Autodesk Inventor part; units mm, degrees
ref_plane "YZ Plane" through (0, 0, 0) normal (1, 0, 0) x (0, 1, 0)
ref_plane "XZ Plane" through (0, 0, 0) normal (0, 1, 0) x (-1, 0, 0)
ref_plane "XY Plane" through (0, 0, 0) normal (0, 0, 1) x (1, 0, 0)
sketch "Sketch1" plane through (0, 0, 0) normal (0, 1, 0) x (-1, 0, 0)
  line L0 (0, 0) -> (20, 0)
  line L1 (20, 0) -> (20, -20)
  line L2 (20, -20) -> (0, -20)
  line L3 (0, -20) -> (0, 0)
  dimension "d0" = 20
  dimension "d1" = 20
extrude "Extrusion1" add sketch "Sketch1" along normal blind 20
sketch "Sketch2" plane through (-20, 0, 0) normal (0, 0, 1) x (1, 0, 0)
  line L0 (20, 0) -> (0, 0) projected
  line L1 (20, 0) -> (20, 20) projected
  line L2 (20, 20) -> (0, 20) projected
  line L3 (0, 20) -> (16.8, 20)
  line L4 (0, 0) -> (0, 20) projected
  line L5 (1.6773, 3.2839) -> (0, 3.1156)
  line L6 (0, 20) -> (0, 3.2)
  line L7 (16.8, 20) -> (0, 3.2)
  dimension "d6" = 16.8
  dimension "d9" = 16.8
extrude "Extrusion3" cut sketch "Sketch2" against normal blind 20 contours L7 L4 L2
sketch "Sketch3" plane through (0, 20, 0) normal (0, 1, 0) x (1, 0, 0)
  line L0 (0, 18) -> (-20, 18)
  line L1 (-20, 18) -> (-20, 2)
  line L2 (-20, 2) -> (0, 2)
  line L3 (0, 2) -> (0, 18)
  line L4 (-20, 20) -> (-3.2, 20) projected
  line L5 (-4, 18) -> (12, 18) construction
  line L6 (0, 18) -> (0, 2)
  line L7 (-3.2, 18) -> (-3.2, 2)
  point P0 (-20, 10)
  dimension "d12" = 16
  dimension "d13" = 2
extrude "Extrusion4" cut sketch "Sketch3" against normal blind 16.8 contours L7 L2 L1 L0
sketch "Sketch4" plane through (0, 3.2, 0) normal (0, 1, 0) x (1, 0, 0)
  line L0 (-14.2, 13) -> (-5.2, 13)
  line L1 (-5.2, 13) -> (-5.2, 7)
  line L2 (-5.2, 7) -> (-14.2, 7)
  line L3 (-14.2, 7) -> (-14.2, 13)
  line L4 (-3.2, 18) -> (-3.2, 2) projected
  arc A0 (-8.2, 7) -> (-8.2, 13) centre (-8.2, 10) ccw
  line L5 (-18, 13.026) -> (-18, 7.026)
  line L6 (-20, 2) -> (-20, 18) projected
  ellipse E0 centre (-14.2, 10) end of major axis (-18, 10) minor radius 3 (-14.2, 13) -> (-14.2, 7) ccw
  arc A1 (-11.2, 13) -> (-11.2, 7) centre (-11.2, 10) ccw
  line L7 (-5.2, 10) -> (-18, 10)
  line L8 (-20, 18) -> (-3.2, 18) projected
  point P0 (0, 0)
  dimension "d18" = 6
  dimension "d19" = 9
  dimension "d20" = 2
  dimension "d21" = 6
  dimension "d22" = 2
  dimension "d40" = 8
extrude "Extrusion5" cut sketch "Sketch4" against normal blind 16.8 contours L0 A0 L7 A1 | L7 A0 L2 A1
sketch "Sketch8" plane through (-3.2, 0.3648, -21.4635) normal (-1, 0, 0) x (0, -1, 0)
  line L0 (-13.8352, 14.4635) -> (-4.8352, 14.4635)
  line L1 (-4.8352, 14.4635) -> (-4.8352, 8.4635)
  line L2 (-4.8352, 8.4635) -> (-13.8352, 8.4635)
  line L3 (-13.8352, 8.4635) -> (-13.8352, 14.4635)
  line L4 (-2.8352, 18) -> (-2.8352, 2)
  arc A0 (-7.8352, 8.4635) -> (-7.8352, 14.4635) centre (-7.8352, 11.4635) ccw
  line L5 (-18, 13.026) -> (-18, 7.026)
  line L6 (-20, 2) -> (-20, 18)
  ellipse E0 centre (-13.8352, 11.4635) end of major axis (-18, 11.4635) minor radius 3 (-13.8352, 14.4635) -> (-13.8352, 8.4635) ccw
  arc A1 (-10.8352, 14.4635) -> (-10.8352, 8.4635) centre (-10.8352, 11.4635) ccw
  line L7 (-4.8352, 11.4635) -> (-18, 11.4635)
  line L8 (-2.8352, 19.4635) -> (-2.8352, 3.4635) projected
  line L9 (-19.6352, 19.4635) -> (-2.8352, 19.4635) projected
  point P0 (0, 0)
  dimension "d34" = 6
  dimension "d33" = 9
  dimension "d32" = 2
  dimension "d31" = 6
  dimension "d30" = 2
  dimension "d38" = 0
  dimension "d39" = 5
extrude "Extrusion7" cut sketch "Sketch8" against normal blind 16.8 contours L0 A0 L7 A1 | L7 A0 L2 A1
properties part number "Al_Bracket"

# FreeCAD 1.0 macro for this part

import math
import FreeCAD as App
import Part
import Sketcher
from FreeCAD import Vector
Q = App.Units.Quantity

doc = App.newDocument("Part")
params = doc.addObject("Spreadsheet::Sheet", "Params")
for row, (alias, value) in enumerate([
    ("sketch1_width", "20 mm"),
    ("pad1_length", "20 mm"),
    ("sketch2_width", "16.8 mm"),
    ("pocket1_length", "20 mm"),
    ("sketch3_height", "16 mm"),
    ("sketch3_width", "16.8 mm"),
    ("pocket2_length", "16.8 mm"),
    ("sketch4_radius", "3 mm"),
    ("sketch4_width", "3 mm"),
    ("pocket3_length", "16.8 mm"),
    ("sketch5_radius", "3 mm"),
    ("sketch5_width", "3 mm"),
    ("pocket4_length", "16.8 mm"),
], start=1):
    params.set(f"A{row}", alias)
    params.set(f"B{row}", "=" + value)
    params.setAlias(f"B{row}", alias)

body = doc.addObject("PartDesign::Body", "Body")

sketch1 = body.newObject("Sketcher::SketchObject", "Sketch")
sketch1.AttachmentSupport = (doc.getObject("XZ_Plane"), [""])
sketch1.MapMode = "FlatFace"
sketch1.addGeometry([
    Part.LineSegment(Vector(-20, 0, 0), Vector(0, 0, 0)),
    Part.LineSegment(Vector(0, 0, 0), Vector(0, -20, 0)),
    Part.LineSegment(Vector(0, -20, 0), Vector(-20, -20, 0)),
    Part.LineSegment(Vector(-20, -20, 0), Vector(-20, 0, 0)),
], False)
sketch1.addConstraint([
    Sketcher.Constraint("Coincident", 0, 2, 1, 1),
    Sketcher.Constraint("Coincident", 1, 2, 2, 1),
    Sketcher.Constraint("Coincident", 2, 2, 3, 1),
    Sketcher.Constraint("Coincident", 3, 2, 0, 1),
    Sketcher.Constraint("Horizontal", 0),
    Sketcher.Constraint("Vertical", 1),
    Sketcher.Constraint("Horizontal", 2),
    Sketcher.Constraint("Vertical", 3),
    Sketcher.Constraint("Coincident", 0, 2, -1, 1),
    Sketcher.Constraint("Equal", 2, 1),
    Sketcher.Constraint("DistanceX", 0, 1, 0, 2, Q("20 mm")),
])
sketch1.setExpression("Constraints[10]", "Params.sketch1_width")
pad1 = body.newObject("PartDesign::Pad", "Pad")
pad1.Profile = sketch1
pad1.setExpression("Length", "Params.pad1_length")
pad1.Reversed = True

sketch2 = body.newObject("Sketcher::SketchObject", "Sketch001")
sketch2.AttachmentSupport = (doc.getObject("XY_Plane"), [""])
sketch2.MapMode = "FlatFace"
sketch2.addGeometry([
    Part.LineSegment(Vector(-20, 3.2, 0), Vector(-3.2, 20, 0)),
    Part.LineSegment(Vector(-3.2, 20, 0), Vector(-20, 20, 0)),
    Part.LineSegment(Vector(-20, 20, 0), Vector(-20, 3.2, 0)),
], False)
sketch2.addConstraint([
    Sketcher.Constraint("Coincident", 0, 2, 1, 1),
    Sketcher.Constraint("Coincident", 1, 2, 2, 1),
    Sketcher.Constraint("Coincident", 2, 2, 0, 1),
    Sketcher.Constraint("Horizontal", 1),
    Sketcher.Constraint("Vertical", 2),
    Sketcher.Constraint("Equal", 1, 2),
    Sketcher.Constraint("DistanceX", 1, 2, 1, 1, Q("16.8 mm")),
    Sketcher.Constraint("DistanceY", -1, 1, 0, 2, Q("20 mm")),
    Sketcher.Constraint("DistanceX", 1, 2, -1, 1, Q("20 mm")),
])
sketch2.setExpression("Constraints[6]", "Params.sketch2_width")
pocket1 = body.newObject("PartDesign::Pocket", "Pocket")
pocket1.Profile = sketch2
pocket1.setExpression("Length", "Params.pocket1_length")

sketch3 = body.newObject("Sketcher::SketchObject", "Sketch002")
sketch3.AttachmentSupport = (doc.getObject("XZ_Plane"), [""])
sketch3.MapMode = "FlatFace"
sketch3.AttachmentOffset = App.Placement(Vector(0, 0, -20), App.Rotation())
sketch3.addGeometry([
    Part.LineSegment(Vector(-3.2, -2, 0), Vector(-3.2, -18, 0)),
    Part.LineSegment(Vector(-3.2, -18, 0), Vector(-20, -18, 0)),
    Part.LineSegment(Vector(-20, -18, 0), Vector(-20, -2, 0)),
    Part.LineSegment(Vector(-20, -2, 0), Vector(-3.2, -2, 0)),
], False)
sketch3.addConstraint([
    Sketcher.Constraint("Coincident", 0, 2, 1, 1),
    Sketcher.Constraint("Coincident", 1, 2, 2, 1),
    Sketcher.Constraint("Coincident", 2, 2, 3, 1),
    Sketcher.Constraint("Coincident", 3, 2, 0, 1),
    Sketcher.Constraint("Vertical", 0),
    Sketcher.Constraint("Horizontal", 1),
    Sketcher.Constraint("Vertical", 2),
    Sketcher.Constraint("Horizontal", 3),
    Sketcher.Constraint("DistanceY", 0, 2, 0, 1, Q("16 mm")),
    Sketcher.Constraint("DistanceY", 2, 2, -1, 1, Q("2 mm")),
    Sketcher.Constraint("DistanceX", 1, 2, 1, 1, Q("16.8 mm")),
    Sketcher.Constraint("DistanceX", 1, 2, -1, 1, Q("20 mm")),
])
sketch3.setExpression("Constraints[8]", "Params.sketch3_height")
sketch3.setExpression("Constraints[10]", "Params.sketch3_width")
pocket2 = body.newObject("PartDesign::Pocket", "Pocket001")
pocket2.Profile = sketch3
pocket2.setExpression("Length", "Params.pocket2_length")
pocket2.Reversed = True

sketch4 = body.newObject("Sketcher::SketchObject", "Sketch003")
sketch4.AttachmentSupport = (doc.getObject("XZ_Plane"), [""])
sketch4.MapMode = "FlatFace"
sketch4.AttachmentOffset = App.Placement(Vector(0, 0, -3.2), App.Rotation())
sketch4.addGeometry([
    Part.LineSegment(Vector(-8.2, -13, 0), Vector(-11.2, -13, 0)),
    Part.ArcOfCircle(Part.Circle(Vector(-11.2, -10, 0), Vector(0, 0, 1), 3), math.radians(90), math.radians(270)),
    Part.LineSegment(Vector(-11.2, -7, 0), Vector(-8.2, -7, 0)),
    Part.ArcOfCircle(Part.Circle(Vector(-8.2, -10, 0), Vector(0, 0, 1), 3), math.radians(-90), math.radians(90)),
], False)
sketch4.addConstraint([
    Sketcher.Constraint("Tangent", 0, 2, 1, 2),
    Sketcher.Constraint("Tangent", 1, 1, 2, 1),
    Sketcher.Constraint("Tangent", 2, 2, 3, 2),
    Sketcher.Constraint("Tangent", 3, 1, 0, 1),
    Sketcher.Constraint("Horizontal", 0),
    Sketcher.Constraint("Horizontal", 2),
    Sketcher.Constraint("Radius", 1, Q("3 mm")),
    Sketcher.Constraint("DistanceX", 0, 2, 0, 1, Q("3 mm")),
    Sketcher.Constraint("DistanceY", 1, 3, -1, 1, Q("10 mm")),
    Sketcher.Constraint("DistanceX", 1, 3, -1, 1, Q("11.2 mm")),
])
sketch4.setExpression("Constraints[6]", "Params.sketch4_radius")
sketch4.setExpression("Constraints[7]", "Params.sketch4_width")
pocket3 = body.newObject("PartDesign::Pocket", "Pocket002")
pocket3.Profile = sketch4
pocket3.setExpression("Length", "Params.pocket3_length")
pocket3.Reversed = True

sketch5 = body.newObject("Sketcher::SketchObject", "Sketch004")
sketch5.AttachmentSupport = (doc.getObject("YZ_Plane"), [""])
sketch5.MapMode = "FlatFace"
sketch5.AttachmentOffset = App.Placement(Vector(0, 0, -3.2), App.Rotation())
sketch5.addGeometry([
    Part.LineSegment(Vector(8.2, -7, 0), Vector(11.2, -7, 0)),
    Part.ArcOfCircle(Part.Circle(Vector(11.2, -10, 0), Vector(0, 0, 1), 3), math.radians(-90), math.radians(90)),
    Part.LineSegment(Vector(11.2, -13, 0), Vector(8.2, -13, 0)),
    Part.ArcOfCircle(Part.Circle(Vector(8.2, -10, 0), Vector(0, 0, 1), 3), math.radians(90), math.radians(270)),
], False)
sketch5.addConstraint([
    Sketcher.Constraint("Tangent", 0, 2, 1, 2),
    Sketcher.Constraint("Tangent", 1, 1, 2, 1),
    Sketcher.Constraint("Tangent", 2, 2, 3, 2),
    Sketcher.Constraint("Tangent", 3, 1, 0, 1),
    Sketcher.Constraint("Horizontal", 0),
    Sketcher.Constraint("Horizontal", 2),
    Sketcher.Constraint("Radius", 1, Q("3 mm")),
    Sketcher.Constraint("DistanceX", 0, 1, 0, 2, Q("3 mm")),
    Sketcher.Constraint("DistanceY", 1, 3, -1, 1, Q("10 mm")),
    Sketcher.Constraint("DistanceX", -1, 1, 1, 3, Q("11.2 mm")),
])
sketch5.setExpression("Constraints[6]", "Params.sketch5_radius")
sketch5.setExpression("Constraints[7]", "Params.sketch5_width")
pocket4 = body.newObject("PartDesign::Pocket", "Pocket003")
pocket4.Profile = sketch5
pocket4.setExpression("Length", "Params.pocket4_length")
pocket4.Reversed = True

doc.recompute()
